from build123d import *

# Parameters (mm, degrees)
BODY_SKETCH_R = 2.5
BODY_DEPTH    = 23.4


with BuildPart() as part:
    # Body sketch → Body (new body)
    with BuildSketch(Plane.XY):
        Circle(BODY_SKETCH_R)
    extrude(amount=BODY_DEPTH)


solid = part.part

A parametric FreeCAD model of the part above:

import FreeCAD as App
import Part
import Sketcher
from FreeCAD import Vector
Q = App.Units.Quantity

doc = App.newDocument("Part")
body = doc.addObject("PartDesign::Body", "Body")

# Sketch on XY plane
sketch1 = body.newObject("Sketcher::SketchObject", "Sketch")
sketch1.AttachmentSupport = (doc.getObject("XY_Plane"), [""])
sketch1.MapMode = "FlatFace"
sketch1.addGeometry(Part.Circle(Vector(0, 0, 0), Vector(0, 0, 1), 2.5), False)
sketch1.addConstraint(Sketcher.Constraint("Coincident", 0, 3, -1, 1))
sketch1.addConstraint(Sketcher.Constraint("Diameter", 0, Q("5 mm")))
pad1 = body.newObject("PartDesign::Pad", "Pad")
pad1.Profile = sketch1
pad1.Length = 23.4

doc.recompute()
